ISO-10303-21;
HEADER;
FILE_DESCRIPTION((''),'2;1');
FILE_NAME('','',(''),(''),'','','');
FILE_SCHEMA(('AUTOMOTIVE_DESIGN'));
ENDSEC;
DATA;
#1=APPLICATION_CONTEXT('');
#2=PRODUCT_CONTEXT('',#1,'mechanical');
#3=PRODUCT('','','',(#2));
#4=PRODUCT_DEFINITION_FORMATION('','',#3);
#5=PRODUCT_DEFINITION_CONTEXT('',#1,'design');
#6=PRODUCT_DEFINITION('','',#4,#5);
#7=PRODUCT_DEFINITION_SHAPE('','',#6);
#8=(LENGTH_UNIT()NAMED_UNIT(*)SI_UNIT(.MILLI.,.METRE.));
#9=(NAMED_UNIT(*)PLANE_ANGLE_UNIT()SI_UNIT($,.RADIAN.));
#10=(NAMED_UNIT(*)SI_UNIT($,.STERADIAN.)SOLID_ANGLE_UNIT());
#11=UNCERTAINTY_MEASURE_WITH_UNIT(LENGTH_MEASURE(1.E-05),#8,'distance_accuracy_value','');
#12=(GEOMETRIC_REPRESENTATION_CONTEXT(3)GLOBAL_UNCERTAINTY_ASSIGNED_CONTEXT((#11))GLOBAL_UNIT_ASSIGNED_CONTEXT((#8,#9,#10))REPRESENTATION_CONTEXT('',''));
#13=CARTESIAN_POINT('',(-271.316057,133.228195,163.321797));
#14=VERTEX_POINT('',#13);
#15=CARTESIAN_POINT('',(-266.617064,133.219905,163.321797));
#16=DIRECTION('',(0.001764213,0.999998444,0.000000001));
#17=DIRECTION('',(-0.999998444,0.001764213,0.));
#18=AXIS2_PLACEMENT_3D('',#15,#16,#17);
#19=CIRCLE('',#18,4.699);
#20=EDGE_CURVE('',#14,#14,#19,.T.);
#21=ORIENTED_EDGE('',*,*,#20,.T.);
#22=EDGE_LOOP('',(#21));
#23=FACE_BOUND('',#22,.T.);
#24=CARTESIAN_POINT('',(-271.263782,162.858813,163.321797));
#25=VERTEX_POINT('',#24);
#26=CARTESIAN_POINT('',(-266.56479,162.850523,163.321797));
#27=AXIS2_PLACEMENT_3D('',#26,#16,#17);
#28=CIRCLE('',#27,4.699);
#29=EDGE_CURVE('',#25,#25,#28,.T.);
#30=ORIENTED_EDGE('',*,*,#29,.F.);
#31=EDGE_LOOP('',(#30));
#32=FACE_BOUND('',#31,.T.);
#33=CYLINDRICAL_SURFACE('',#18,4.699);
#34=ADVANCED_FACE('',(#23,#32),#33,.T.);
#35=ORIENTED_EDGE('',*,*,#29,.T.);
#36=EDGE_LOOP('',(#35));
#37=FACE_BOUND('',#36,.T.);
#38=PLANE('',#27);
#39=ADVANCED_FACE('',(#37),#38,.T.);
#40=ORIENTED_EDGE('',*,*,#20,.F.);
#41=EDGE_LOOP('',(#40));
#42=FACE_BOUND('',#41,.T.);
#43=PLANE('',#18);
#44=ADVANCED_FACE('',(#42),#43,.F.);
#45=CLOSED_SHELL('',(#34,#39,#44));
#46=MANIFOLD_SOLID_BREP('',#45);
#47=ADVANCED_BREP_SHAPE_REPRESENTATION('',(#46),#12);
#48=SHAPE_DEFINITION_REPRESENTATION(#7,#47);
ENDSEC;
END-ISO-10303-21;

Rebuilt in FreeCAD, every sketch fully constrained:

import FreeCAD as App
import Part
import Sketcher

V = App.Vector
Q = App.Units.Quantity

doc = App.newDocument("Part")
body = doc.addObject("PartDesign::Body", "Body")

sketch1 = body.newObject("Sketcher::SketchObject", "Sketch")
sketch1.Placement = App.Placement(V(-266.617064, 133.219905, 163.321797), App.Rotation(V(0.999998444, -0.001764213, 0), V(0, 0.000000001, -1), V(0.001764213, 0.999998444, 0.000000001), "ZXY"))
sketch1.addGeometry(Part.Circle(V(0, 0, 0), V(0, 0, 1), 4.699), False)
sketch1.addConstraint([
    Sketcher.Constraint("Coincident", 0, 3, -1, 1),
    Sketcher.Constraint("Diameter", 0, Q("0.37 in")),
])

sketch2 = body.newObject("Sketcher::SketchObject", "Sketch001")
sketch2.Placement = App.Placement(V(-266.851262, 0.470783, 0), App.Rotation(V(0.001764213, 0.999998444, 0), V(0, 0, 1), V(0.999998444, -0.001764213, 0), "ZXY"))
sketch2.addGeometry(Part.LineSegment(V(132.749328, 163.321797, 0), V(162.379992, 163.321797, 0)), False)
sketch2.addConstraint([
    Sketcher.Constraint("Horizontal", 0),
    Sketcher.Constraint("DistanceX", 0, 1, 0, 2, 29.630664),
    Sketcher.Constraint("DistanceX", -1, 1, 0, 1, 132.749328),
    Sketcher.Constraint("DistanceY", -1, 1, 0, 1, 163.321797),
])
doc.recompute()

additivepipe = body.newObject("PartDesign::AdditivePipe", "AdditivePipe")
additivepipe.Profile = sketch1
additivepipe.Spine = (sketch2, ["Edge1"])

doc.recompute()
